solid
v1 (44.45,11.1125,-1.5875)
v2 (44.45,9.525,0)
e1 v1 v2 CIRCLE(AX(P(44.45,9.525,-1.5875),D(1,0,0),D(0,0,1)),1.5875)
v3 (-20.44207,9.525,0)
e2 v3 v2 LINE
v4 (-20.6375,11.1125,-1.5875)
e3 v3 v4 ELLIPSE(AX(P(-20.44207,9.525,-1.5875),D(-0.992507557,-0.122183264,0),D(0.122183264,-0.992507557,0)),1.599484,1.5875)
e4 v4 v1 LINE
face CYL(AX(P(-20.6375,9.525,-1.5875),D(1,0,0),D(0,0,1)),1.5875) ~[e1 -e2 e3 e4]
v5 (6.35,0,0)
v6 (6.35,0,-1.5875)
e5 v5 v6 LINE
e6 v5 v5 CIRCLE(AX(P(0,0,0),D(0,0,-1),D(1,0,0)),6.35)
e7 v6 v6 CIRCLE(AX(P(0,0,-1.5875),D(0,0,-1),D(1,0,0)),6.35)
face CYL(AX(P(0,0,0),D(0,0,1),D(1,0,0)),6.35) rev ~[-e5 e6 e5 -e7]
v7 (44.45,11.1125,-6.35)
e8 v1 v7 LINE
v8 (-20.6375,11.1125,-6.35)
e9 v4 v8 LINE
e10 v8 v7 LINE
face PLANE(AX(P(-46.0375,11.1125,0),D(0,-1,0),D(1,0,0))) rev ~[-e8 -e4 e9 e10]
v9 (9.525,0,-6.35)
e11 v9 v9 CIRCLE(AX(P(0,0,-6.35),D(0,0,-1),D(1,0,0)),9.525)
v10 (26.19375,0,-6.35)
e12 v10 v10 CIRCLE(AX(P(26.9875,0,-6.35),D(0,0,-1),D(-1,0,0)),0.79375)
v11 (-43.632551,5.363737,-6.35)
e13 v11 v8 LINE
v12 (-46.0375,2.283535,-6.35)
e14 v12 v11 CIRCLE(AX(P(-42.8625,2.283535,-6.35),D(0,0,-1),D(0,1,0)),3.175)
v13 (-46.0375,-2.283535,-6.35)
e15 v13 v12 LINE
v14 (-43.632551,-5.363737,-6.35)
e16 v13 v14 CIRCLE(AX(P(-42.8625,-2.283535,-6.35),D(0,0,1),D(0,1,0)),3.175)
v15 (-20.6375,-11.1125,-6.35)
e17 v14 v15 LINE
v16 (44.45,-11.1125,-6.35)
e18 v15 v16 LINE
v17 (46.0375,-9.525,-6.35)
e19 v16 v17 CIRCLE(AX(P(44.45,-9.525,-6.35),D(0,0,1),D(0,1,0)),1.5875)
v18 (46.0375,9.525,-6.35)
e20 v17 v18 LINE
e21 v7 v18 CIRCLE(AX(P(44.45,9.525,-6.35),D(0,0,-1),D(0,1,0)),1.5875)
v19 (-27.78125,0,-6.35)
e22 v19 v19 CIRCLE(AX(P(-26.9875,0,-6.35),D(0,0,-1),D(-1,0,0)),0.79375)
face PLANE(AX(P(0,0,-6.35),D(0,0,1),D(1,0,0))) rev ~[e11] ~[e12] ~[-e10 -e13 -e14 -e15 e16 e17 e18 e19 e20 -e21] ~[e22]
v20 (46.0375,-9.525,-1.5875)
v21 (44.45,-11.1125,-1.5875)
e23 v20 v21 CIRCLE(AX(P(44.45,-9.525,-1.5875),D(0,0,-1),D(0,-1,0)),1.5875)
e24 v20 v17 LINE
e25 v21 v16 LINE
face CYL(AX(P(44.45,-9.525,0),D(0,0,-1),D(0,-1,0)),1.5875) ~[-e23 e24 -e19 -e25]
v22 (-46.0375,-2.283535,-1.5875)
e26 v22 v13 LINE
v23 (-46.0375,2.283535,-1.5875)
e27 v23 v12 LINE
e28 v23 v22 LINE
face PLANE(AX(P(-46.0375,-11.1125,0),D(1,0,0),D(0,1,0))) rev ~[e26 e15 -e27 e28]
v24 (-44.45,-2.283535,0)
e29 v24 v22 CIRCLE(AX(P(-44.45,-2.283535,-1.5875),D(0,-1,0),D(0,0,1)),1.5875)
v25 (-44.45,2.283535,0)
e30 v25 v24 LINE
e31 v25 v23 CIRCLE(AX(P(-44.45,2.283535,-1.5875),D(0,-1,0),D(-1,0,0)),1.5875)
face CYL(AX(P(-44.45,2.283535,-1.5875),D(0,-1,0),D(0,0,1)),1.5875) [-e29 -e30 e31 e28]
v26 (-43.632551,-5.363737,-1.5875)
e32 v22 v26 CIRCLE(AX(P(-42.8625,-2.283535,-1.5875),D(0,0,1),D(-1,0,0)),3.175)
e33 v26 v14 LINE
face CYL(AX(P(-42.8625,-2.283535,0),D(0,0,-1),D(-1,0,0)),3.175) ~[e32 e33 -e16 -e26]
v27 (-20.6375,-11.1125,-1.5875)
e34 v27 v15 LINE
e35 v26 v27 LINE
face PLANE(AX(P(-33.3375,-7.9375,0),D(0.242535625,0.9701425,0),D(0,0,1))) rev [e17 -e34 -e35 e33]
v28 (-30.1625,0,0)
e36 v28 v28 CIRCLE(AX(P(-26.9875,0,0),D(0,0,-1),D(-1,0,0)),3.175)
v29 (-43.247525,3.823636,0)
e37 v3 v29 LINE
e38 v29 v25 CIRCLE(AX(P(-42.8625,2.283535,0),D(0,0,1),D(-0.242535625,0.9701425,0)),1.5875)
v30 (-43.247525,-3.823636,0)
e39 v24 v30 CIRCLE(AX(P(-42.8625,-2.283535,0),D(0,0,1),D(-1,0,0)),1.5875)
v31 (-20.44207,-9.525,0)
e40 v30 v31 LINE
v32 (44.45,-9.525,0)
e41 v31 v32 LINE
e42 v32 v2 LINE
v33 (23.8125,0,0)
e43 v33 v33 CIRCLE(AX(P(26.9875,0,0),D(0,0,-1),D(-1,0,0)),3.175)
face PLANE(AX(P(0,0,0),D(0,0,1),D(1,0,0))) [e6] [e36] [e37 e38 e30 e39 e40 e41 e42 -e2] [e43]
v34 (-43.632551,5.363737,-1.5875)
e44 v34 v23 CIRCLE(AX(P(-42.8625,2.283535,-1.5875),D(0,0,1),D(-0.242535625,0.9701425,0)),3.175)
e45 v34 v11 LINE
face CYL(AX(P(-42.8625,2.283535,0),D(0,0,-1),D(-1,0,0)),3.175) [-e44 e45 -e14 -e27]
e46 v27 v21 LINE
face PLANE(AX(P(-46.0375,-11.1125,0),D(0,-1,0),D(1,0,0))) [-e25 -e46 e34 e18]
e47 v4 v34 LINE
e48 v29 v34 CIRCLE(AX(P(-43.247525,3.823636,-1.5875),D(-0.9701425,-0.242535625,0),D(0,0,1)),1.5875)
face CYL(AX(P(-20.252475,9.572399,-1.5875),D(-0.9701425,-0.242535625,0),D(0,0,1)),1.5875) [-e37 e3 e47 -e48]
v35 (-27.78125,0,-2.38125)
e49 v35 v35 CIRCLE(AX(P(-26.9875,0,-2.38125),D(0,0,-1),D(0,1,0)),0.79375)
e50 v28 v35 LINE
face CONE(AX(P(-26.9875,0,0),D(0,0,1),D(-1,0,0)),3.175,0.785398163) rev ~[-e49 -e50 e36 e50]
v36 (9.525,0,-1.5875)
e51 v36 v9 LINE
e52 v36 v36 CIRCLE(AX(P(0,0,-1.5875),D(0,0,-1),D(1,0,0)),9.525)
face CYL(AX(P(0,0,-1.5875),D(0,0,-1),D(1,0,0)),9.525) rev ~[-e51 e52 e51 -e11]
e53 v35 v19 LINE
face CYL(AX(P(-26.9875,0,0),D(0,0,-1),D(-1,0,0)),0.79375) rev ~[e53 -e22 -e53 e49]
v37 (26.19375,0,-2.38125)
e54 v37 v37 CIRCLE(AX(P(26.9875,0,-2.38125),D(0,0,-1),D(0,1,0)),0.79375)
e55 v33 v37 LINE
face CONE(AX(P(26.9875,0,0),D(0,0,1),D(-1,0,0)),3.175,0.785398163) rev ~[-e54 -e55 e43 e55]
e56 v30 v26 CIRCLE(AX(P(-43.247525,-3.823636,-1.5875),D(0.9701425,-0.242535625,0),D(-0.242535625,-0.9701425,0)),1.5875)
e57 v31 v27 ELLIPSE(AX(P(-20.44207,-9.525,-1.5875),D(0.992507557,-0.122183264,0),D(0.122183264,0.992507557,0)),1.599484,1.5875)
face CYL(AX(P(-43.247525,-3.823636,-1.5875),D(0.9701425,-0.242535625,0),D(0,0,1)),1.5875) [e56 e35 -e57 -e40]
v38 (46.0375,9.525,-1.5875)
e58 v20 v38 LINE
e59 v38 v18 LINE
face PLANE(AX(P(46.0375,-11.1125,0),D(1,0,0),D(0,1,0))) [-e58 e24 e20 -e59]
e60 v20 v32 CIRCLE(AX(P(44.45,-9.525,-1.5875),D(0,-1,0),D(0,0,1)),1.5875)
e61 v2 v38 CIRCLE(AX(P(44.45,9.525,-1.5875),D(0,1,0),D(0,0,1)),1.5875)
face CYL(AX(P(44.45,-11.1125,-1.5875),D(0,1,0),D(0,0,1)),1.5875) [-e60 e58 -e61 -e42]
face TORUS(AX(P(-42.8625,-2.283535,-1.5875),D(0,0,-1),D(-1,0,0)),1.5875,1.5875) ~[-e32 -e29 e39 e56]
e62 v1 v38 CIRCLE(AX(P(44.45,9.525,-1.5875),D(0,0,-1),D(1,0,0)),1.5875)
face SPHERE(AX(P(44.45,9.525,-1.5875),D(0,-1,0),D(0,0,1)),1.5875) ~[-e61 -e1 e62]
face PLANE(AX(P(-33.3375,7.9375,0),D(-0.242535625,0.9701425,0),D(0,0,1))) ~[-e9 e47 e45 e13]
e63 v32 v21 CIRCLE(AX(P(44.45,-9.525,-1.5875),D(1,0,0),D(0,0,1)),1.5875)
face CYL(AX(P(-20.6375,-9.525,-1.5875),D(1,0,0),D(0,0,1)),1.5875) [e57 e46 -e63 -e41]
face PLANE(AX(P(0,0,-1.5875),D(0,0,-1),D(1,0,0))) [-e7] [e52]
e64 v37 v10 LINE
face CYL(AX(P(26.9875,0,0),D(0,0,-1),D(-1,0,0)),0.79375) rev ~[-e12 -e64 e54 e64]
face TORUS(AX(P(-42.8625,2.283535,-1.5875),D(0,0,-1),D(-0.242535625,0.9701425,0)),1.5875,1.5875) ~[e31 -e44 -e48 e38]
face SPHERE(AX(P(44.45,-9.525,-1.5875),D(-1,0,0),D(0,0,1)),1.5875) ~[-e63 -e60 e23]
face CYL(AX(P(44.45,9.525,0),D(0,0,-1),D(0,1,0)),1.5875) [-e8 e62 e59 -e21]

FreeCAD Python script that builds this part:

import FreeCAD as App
import Part
import Sketcher
Q = App.Units.Quantity


def edges_at(feature, points):
    """Names of the edges that pass closest to the given points."""
    edges = feature.Shape.Edges
    near = lambda p: min(range(len(edges)), key=lambda i: edges[i].distToShape(Part.Vertex(*p))[0])
    return sorted({f"Edge{near(p) + 1}" for p in points})


def add_polygon(sketch, points):
    """Adds a closed chain of lines whose ends are joined by coincident constraints."""
    first, n = sketch.GeometryCount, len(points)
    for a, b in zip(points, points[1:] + points[:1]):
        sketch.addGeometry(Part.LineSegment(App.Vector(*a, 0), App.Vector(*b, 0)), False)
    for i in range(n):
        sketch.addConstraint(Sketcher.Constraint("Coincident", first + i, 2, first + (i + 1) % n, 1))

doc = App.newDocument("Part")
params = doc.addObject("Spreadsheet::Sheet", "Params")
for row, (alias, value) in enumerate([
    ("sketch1_diameter", "0.5 in"),
    ("sketch1_width", "3.625 in"),
    ("sketch1_height", "0.875 in"),
    ("pad1_length", "0.25 in"),
    ("sketch2_diameter", "0.0625 in"),
    ("hole_diameter", "0.0625 in"),
    ("hole_csink_diameter", "0.25 in"),
    ("sketch3_diameter", "0.5 in"),
    ("hole2_diameter", "0.5 in"),
    ("hole2_cbore_diameter", "0.75 in"),
    ("hole2_cbore_depth", "0.1875 in"),
    ("chamfer_size", "0.25 in"),
    ("chamfer_size2", "1 in"),
    ("fillet_radius", "0.125 in"),
    ("fillet2_radius", "0.0625 in"),
], start=1):
    params.set(f"A{row}", alias)
    params.set(f"B{row}", "=" + value)
    params.setAlias(f"B{row}", alias)

body = doc.addObject("PartDesign::Body", "Body")

sketch1 = body.newObject("Sketcher::SketchObject", "Sketch")
sketch1.AttachmentSupport = (doc.getObject("XY_Plane"), [""])
sketch1.MapMode = "FlatFace"
add_polygon(sketch1, [(-46.0375, 11.1125), (-46.0375, -11.1125), (46.0375, -11.1125), (46.0375, 11.1125)])
sketch1.addGeometry(Part.Circle(App.Vector(0, 0, 0), App.Vector(0, 0, 1), 6.35), False)
sketch1.addConstraint([
    Sketcher.Constraint("Vertical", 0),
    Sketcher.Constraint("Horizontal", 1),
    Sketcher.Constraint("Vertical", 2),
    Sketcher.Constraint("Horizontal", 3),
    Sketcher.Constraint("Coincident", 4, 3, -1, 1),
    Sketcher.Constraint("Symmetric", 0, 2, 2, 2, -1, 1),
    Sketcher.Constraint("Diameter", 4, Q("0.5 in")),
    Sketcher.Constraint("DistanceX", 1, 1, 1, 2, Q("3.625 in")),
    Sketcher.Constraint("DistanceY", 0, 2, 0, 1, Q("0.875 in")),
])
sketch1.setExpression("Constraints[10]", "Params.sketch1_diameter")
sketch1.setExpression("Constraints[11]", "Params.sketch1_width")
sketch1.setExpression("Constraints[12]", "Params.sketch1_height")
pad1 = body.newObject("PartDesign::Pad", "Pad")
pad1.Profile = sketch1
pad1.setExpression("Length", "Params.pad1_length")
pad1.Reversed = True

sketch2 = body.newObject("Sketcher::SketchObject", "Sketch001")
sketch2.AttachmentSupport = (doc.getObject("XY_Plane"), [""])
sketch2.MapMode = "FlatFace"
sketch2.addGeometry([
    Part.Circle(App.Vector(26.9875, 0, 0), App.Vector(0, 0, 1), 0.79375),
    Part.Circle(App.Vector(-26.9875, 0, 0), App.Vector(0, 0, 1), 0.79375),
], False)
sketch2.addConstraint([
    Sketcher.Constraint("Equal", 0, 1),
    Sketcher.Constraint("Symmetric", 0, 3, 1, 3, -1, 1),
    Sketcher.Constraint("PointOnObject", 0, 3, -1),
    Sketcher.Constraint("Diameter", 0, Q("0.0625 in")),
    Sketcher.Constraint("DistanceX", -1, 1, 0, 3, Q("1.0625 in")),
])
sketch2.setExpression("Constraints[3]", "Params.sketch2_diameter")
doc.recompute()
hole = body.newObject("PartDesign::Hole", "Hole")
hole.Profile = sketch2
hole.ThreadType = "None"
hole.setExpression("Diameter", "Params.hole_diameter")
hole.DepthType = "ThroughAll"
hole.HoleCutType = "Countersink"
hole.setExpression("HoleCutDiameter", "Params.hole_csink_diameter")
hole.HoleCutCountersinkAngle = 90

sketch3 = body.newObject("Sketcher::SketchObject", "Sketch002")
sketch3.AttachmentSupport = (doc.getObject("XY_Plane"), [""])
sketch3.MapMode = "FlatFace"
sketch3.AttachmentOffset = App.Placement(App.Vector(0, 0, -0.25 * 25.4), App.Rotation())
sketch3.addGeometry(Part.Circle(App.Vector(0, 0, 0), App.Vector(0, 0, 1), 6.35), False)
sketch3.addConstraint([
    Sketcher.Constraint("Coincident", 0, 3, -1, 1),
    Sketcher.Constraint("Diameter", 0, Q("0.5 in")),
])
sketch3.setExpression("Constraints[1]", "Params.sketch3_diameter")
doc.recompute()
hole2 = body.newObject("PartDesign::Hole", "Hole001")
hole2.Profile = sketch3
hole2.ThreadType = "None"
hole2.setExpression("Diameter", "Params.hole2_diameter")
hole2.DepthType = "ThroughAll"
hole2.HoleCutType = "Counterbore"
hole2.setExpression("HoleCutDiameter", "Params.hole2_cbore_diameter")
hole2.setExpression("HoleCutDepth", "Params.hole2_cbore_depth")
hole2.Reversed = True
doc.recompute()

chamfer = body.newObject("PartDesign::Chamfer", "Chamfer")
chamfer.Base = (hole2, edges_at(hole2, [(-46.038, -11.113, -3.175), (-46.038, 11.113, -3.175)]))
chamfer.ChamferType = "Two distances"
chamfer.setExpression("Size", "Params.chamfer_size")
chamfer.setExpression("Size2", "Params.chamfer_size2")
doc.recompute()

fillet = body.newObject("PartDesign::Fillet", "Fillet")
fillet.Base = (chamfer, edges_at(chamfer, [(-46.038, -4.763, -3.175), (-46.038, 4.763, -3.175)]))
fillet.setExpression("Radius", "Params.fillet_radius")
doc.recompute()

fillet2 = body.newObject("PartDesign::Fillet", "Fillet001")
fillet2.Base = (fillet, edges_at(fillet, [
    (12.7, -11.113, 0),
    (46.038, 0, 0),
    (12.7, 11.113, 0),
    (-32.135, -8.238, 0),
    (-32.135, 8.238, 0),
    (-45.365, 4.237, 0),
    (-46.038, 0, 0),
    (-45.365, -4.237, 0),
    (46.038, -11.113, -3.175),
    (46.038, 11.113, -3.175),
]))
fillet2.setExpression("Radius", "Params.fillet2_radius")

doc.recompute()
